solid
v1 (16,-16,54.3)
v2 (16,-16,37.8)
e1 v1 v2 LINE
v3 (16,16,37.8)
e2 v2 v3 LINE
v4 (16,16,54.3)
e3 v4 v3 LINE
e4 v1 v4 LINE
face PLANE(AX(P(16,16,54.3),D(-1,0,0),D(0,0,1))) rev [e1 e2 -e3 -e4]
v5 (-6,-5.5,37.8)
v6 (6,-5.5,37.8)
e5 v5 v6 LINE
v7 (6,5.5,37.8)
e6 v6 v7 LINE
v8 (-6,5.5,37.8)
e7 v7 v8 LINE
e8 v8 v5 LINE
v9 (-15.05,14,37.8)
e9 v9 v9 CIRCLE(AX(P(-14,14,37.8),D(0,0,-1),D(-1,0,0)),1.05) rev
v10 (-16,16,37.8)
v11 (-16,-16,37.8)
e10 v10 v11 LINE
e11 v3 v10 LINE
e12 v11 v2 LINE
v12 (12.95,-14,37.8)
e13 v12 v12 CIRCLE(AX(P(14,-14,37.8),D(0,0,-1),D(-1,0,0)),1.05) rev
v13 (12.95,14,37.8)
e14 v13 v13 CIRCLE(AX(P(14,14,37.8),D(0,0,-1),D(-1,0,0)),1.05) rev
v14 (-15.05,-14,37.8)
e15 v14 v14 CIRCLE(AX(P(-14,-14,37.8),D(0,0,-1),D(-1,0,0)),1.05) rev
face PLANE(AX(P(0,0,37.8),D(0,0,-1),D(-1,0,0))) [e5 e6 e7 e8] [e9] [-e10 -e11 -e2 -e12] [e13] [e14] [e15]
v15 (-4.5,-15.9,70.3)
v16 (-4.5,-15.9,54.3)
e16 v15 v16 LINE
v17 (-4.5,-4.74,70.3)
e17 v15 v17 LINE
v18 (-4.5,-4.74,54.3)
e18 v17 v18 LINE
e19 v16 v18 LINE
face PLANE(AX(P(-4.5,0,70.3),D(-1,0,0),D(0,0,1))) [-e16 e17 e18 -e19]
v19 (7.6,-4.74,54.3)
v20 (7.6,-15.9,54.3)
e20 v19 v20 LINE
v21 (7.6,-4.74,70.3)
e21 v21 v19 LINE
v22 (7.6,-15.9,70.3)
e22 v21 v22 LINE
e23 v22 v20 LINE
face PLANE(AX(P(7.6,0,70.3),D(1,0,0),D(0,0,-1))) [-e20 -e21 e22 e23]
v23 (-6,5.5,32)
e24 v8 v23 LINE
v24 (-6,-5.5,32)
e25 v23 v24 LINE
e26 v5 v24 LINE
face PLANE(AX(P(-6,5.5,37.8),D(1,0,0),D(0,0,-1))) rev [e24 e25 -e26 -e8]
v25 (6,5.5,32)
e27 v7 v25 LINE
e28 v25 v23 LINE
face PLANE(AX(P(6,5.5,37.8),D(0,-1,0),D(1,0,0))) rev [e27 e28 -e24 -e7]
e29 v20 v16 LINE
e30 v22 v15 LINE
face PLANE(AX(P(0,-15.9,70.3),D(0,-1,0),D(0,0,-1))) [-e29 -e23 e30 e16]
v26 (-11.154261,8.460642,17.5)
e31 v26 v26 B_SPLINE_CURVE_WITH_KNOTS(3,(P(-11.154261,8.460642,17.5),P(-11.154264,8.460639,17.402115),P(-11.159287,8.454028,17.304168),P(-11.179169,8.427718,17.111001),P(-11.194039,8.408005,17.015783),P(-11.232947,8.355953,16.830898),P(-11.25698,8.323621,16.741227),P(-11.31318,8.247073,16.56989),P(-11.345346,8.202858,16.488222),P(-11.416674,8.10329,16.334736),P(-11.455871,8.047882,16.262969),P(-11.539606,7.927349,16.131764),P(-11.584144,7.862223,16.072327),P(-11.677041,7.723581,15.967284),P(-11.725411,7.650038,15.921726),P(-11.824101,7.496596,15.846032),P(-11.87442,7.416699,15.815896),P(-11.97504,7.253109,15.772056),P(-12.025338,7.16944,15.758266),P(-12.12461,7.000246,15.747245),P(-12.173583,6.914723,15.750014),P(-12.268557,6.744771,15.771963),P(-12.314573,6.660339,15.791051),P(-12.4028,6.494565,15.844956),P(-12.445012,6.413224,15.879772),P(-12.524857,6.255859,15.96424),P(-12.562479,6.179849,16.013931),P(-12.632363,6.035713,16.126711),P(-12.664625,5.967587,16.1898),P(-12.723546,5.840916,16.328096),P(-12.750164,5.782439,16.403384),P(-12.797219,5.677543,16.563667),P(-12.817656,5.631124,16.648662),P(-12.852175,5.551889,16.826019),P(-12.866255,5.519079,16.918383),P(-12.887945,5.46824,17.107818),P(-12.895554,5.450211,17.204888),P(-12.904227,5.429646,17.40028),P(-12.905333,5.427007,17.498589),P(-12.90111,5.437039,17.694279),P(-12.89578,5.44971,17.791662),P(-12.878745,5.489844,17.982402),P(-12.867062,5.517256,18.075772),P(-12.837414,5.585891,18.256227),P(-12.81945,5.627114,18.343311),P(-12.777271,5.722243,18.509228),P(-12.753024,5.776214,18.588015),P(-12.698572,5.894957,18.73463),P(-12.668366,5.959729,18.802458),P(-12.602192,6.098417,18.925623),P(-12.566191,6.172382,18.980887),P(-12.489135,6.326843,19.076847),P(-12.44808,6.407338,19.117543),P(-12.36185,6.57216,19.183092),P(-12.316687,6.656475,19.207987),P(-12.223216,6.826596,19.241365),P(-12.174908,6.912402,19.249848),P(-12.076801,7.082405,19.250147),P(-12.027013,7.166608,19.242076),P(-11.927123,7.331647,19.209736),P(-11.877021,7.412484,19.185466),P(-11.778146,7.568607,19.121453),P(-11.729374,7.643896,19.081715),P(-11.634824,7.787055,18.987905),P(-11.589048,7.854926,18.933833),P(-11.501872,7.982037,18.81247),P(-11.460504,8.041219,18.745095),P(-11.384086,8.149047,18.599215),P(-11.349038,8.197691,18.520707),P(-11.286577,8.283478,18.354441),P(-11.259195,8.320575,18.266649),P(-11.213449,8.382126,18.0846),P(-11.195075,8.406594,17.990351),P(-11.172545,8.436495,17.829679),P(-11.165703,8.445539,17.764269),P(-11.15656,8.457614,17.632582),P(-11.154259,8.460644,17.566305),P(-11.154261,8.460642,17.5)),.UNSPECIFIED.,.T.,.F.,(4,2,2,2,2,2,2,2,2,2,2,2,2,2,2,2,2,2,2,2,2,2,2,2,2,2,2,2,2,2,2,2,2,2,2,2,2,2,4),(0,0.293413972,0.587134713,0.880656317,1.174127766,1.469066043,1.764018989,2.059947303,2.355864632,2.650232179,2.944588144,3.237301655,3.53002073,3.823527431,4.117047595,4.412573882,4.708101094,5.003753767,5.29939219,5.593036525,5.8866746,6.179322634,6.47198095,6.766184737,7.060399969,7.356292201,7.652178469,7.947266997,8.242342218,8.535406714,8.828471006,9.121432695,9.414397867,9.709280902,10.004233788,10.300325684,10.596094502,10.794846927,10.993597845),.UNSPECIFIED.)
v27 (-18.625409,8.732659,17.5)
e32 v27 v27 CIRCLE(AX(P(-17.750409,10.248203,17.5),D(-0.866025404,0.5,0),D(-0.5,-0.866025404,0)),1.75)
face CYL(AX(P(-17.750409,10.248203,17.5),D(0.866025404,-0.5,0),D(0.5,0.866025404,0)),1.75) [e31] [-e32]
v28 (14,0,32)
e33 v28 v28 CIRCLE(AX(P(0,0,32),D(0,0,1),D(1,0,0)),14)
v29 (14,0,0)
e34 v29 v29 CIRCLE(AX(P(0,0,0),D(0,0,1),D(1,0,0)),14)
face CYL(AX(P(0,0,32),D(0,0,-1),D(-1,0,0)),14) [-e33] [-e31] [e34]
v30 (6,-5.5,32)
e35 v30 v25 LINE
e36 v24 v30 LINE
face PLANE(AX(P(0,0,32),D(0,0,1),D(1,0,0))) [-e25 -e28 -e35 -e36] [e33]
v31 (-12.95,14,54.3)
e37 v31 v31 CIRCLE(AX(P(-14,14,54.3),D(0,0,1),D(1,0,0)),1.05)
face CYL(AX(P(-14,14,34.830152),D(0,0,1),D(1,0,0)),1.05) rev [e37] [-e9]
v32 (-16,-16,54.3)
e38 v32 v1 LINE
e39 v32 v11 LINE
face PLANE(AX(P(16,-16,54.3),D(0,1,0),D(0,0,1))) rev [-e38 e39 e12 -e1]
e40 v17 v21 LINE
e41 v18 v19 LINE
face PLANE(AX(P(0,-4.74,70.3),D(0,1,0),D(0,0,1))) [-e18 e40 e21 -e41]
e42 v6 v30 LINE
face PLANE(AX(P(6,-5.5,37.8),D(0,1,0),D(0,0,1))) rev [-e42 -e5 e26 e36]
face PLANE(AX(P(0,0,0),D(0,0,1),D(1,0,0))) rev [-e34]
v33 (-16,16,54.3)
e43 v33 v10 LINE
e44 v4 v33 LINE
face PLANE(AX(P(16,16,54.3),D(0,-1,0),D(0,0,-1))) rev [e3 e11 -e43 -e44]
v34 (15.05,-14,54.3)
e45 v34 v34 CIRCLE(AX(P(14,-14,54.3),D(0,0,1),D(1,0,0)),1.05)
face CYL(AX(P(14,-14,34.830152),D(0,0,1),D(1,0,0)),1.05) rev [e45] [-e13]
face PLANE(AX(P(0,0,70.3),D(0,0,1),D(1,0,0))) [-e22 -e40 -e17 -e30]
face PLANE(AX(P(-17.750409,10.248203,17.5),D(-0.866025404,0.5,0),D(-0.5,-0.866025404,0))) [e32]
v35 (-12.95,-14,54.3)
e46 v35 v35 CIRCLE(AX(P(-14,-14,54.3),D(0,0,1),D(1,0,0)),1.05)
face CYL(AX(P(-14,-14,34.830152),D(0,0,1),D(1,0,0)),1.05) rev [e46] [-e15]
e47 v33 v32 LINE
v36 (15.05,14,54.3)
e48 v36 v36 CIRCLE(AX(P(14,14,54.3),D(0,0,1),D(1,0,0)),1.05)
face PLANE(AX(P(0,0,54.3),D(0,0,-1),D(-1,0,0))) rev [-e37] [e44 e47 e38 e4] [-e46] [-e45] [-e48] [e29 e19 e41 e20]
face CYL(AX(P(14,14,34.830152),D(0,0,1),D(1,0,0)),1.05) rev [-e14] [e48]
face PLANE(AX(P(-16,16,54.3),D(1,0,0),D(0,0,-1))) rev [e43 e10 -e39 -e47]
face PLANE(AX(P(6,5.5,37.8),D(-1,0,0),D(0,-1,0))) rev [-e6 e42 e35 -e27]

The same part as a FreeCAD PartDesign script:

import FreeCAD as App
import Part
import Sketcher

V = App.Vector


def add_polygon(sketch, points):
    """Adds a closed chain of lines whose ends are joined by coincident constraints."""
    first, n = sketch.GeometryCount, len(points)
    for a, b in zip(points, points[1:] + points[:1]):
        sketch.addGeometry(Part.LineSegment(App.Vector(*a, 0), App.Vector(*b, 0)), False)
    for i in range(n):
        sketch.addConstraint(Sketcher.Constraint("Coincident", first + i, 2, first + (i + 1) % n, 1))

doc = App.newDocument("Part")
body = doc.addObject("PartDesign::Body", "Body")

# Sketch on XY plane
sketch1 = doc.addObject("Sketcher::SketchObject", "Sketch")
body.addObject(sketch1)
sketch1.AttachmentSupport = (doc.XY_Plane, [""])
sketch1.MapMode = "FlatFace"
sketch1.addGeometry(Part.Circle(V(0, 0, 0), V(0, 0, 1), 14), False)
sketch1.addConstraint([
    Sketcher.Constraint("Coincident", 0, 3, -1, 1),
    Sketcher.Constraint("Diameter", 0, 28.0),
])
pad1 = doc.addObject("PartDesign::Pad", "Pad")
body.addObject(pad1)
pad1.Profile = sketch1
pad1.Length = 32

# Sketch on XY plane
sketch2 = doc.addObject("Sketcher::SketchObject", "Sketch001")
body.addObject(sketch2)
sketch2.AttachmentSupport = (doc.XY_Plane, [""])
sketch2.MapMode = "FlatFace"
sketch2.AttachmentOffset = App.Placement(V(0, 0, 32), App.Rotation())
add_polygon(sketch2, [(-6, 5.5), (-6, -5.5), (6, -5.5), (6, 5.5)])  # lines 0-3
sketch2.addConstraint([
    Sketcher.Constraint("Vertical", 0),
    Sketcher.Constraint("Horizontal", 1),
    Sketcher.Constraint("Vertical", 2),
    Sketcher.Constraint("Horizontal", 3),
    Sketcher.Constraint("Symmetric", 0, 2, 2, 2, -1, 1),
    Sketcher.Constraint("DistanceX", 1, 1, 1, 2, 12.0),
    Sketcher.Constraint("DistanceY", 0, 2, 0, 1, 11.0),
])
pad2 = doc.addObject("PartDesign::Pad", "Pad001")
body.addObject(pad2)
pad2.Profile = sketch2
pad2.Length = 5.8

# Sketch on XY plane
sketch3 = doc.addObject("Sketcher::SketchObject", "Sketch002")
body.addObject(sketch3)
sketch3.AttachmentSupport = (doc.XY_Plane, [""])
sketch3.MapMode = "FlatFace"
sketch3.AttachmentOffset = App.Placement(V(0, 0, 37.8), App.Rotation())
add_polygon(sketch3, [(-16, 16), (-16, -16), (16, -16), (16, 16)])  # lines 0-3
sketch3.addConstraint([
    Sketcher.Constraint("Vertical", 0),
    Sketcher.Constraint("Horizontal", 1),
    Sketcher.Constraint("Vertical", 2),
    Sketcher.Constraint("Horizontal", 3),
    Sketcher.Constraint("Symmetric", 0, 2, 2, 2, -1, 1),
    Sketcher.Constraint("Equal", 3, 0),
    Sketcher.Constraint("DistanceX", 1, 1, 1, 2, 32.0),
])
pad3 = doc.addObject("PartDesign::Pad", "Pad002")
body.addObject(pad3)
pad3.Profile = sketch3
pad3.Length = 16.5

# Sketch on XY plane
sketch4 = doc.addObject("Sketcher::SketchObject", "Sketch003")
body.addObject(sketch4)
sketch4.AttachmentSupport = (doc.XY_Plane, [""])
sketch4.MapMode = "FlatFace"
sketch4.AttachmentOffset = App.Placement(V(0, 0, 54.3), App.Rotation())
add_polygon(sketch4, [(-4.5, -4.74), (-4.5, -15.9), (7.6, -15.9), (7.6, -4.74)])  # lines 0-3
sketch4.addConstraint([
    Sketcher.Constraint("Vertical", 0),
    Sketcher.Constraint("Horizontal", 1),
    Sketcher.Constraint("Vertical", 2),
    Sketcher.Constraint("Horizontal", 3),
    Sketcher.Constraint("DistanceX", 1, 1, 1, 2, 12.1),
    Sketcher.Constraint("DistanceY", 0, 2, 0, 1, 11.16),
    Sketcher.Constraint("DistanceX", 0, 2, -1, 1, 4.5),
    Sketcher.Constraint("DistanceY", 0, 2, -1, 1, 15.9),
])
pad4 = doc.addObject("PartDesign::Pad", "Pad003")
body.addObject(pad4)
pad4.Profile = sketch4
pad4.Length = 16

# Sketch on XY plane
sketch5 = doc.addObject("Sketcher::SketchObject", "Sketch004")
body.addObject(sketch5)
sketch5.AttachmentSupport = (doc.XY_Plane, [""])
sketch5.MapMode = "FlatFace"
sketch5.AttachmentOffset = App.Placement(V(0, 0, 54.3), App.Rotation())
sketch5.addGeometry([
    Part.Circle(V(-14, 14, 0), V(0, 0, 1), 1.05),
    Part.Circle(V(14, 14, 0), V(0, 0, 1), 1.05),
    Part.Circle(V(-14, -14, 0), V(0, 0, 1), 1.05),
    Part.Circle(V(14, -14, 0), V(0, 0, 1), 1.05),
], False)
sketch5.addConstraint([
    Sketcher.Constraint("Equal", 0, 1),
    Sketcher.Constraint("Equal", 1, 2),
    Sketcher.Constraint("Equal", 2, 3),
    Sketcher.Constraint("Symmetric", 1, 3, 2, 3, -1, 1),
    Sketcher.Constraint("Symmetric", 0, 3, 3, 3, -1, 1),
    Sketcher.Constraint("Symmetric", 0, 3, 1, 3, -2),
    Sketcher.Constraint("Diameter", 0, 2.1),
    Sketcher.Constraint("DistanceX", 0, 3, -1, 1, 14.0),
    Sketcher.Constraint("DistanceY", -1, 1, 0, 3, 14.0),
])
pocket1 = doc.addObject("PartDesign::Pocket", "Pocket")
body.addObject(pocket1)
pocket1.Profile = sketch5
pocket1.Length = 16.5

# Sketch on an angled plane
sketch6 = doc.addObject("Sketcher::SketchObject", "Sketch005")
body.addObject(sketch6)
sketch6.Placement = App.Placement(V(0.003112, -0.001797, 0), App.Rotation(V(0, 0, -1), V(-0.5, -0.866025404, 0), V(-0.866025404, 0.5, 0), "ZXY"))
sketch6.addGeometry(Part.Circle(V(-17.5, 0, 0), V(0, 0, 1), 1.75), False)
sketch6.addConstraint([
    Sketcher.Constraint("PointOnObject", 0, 3, -1),
    Sketcher.Constraint("Diameter", 0, 3.5),
    Sketcher.Constraint("DistanceX", 0, 3, -1, 1, 17.5),
])
pad5 = doc.addObject("PartDesign::Pad", "Pad004")
body.addObject(pad5)
pad5.Profile = sketch6
pad5.Length = 20.5

doc.recompute()
